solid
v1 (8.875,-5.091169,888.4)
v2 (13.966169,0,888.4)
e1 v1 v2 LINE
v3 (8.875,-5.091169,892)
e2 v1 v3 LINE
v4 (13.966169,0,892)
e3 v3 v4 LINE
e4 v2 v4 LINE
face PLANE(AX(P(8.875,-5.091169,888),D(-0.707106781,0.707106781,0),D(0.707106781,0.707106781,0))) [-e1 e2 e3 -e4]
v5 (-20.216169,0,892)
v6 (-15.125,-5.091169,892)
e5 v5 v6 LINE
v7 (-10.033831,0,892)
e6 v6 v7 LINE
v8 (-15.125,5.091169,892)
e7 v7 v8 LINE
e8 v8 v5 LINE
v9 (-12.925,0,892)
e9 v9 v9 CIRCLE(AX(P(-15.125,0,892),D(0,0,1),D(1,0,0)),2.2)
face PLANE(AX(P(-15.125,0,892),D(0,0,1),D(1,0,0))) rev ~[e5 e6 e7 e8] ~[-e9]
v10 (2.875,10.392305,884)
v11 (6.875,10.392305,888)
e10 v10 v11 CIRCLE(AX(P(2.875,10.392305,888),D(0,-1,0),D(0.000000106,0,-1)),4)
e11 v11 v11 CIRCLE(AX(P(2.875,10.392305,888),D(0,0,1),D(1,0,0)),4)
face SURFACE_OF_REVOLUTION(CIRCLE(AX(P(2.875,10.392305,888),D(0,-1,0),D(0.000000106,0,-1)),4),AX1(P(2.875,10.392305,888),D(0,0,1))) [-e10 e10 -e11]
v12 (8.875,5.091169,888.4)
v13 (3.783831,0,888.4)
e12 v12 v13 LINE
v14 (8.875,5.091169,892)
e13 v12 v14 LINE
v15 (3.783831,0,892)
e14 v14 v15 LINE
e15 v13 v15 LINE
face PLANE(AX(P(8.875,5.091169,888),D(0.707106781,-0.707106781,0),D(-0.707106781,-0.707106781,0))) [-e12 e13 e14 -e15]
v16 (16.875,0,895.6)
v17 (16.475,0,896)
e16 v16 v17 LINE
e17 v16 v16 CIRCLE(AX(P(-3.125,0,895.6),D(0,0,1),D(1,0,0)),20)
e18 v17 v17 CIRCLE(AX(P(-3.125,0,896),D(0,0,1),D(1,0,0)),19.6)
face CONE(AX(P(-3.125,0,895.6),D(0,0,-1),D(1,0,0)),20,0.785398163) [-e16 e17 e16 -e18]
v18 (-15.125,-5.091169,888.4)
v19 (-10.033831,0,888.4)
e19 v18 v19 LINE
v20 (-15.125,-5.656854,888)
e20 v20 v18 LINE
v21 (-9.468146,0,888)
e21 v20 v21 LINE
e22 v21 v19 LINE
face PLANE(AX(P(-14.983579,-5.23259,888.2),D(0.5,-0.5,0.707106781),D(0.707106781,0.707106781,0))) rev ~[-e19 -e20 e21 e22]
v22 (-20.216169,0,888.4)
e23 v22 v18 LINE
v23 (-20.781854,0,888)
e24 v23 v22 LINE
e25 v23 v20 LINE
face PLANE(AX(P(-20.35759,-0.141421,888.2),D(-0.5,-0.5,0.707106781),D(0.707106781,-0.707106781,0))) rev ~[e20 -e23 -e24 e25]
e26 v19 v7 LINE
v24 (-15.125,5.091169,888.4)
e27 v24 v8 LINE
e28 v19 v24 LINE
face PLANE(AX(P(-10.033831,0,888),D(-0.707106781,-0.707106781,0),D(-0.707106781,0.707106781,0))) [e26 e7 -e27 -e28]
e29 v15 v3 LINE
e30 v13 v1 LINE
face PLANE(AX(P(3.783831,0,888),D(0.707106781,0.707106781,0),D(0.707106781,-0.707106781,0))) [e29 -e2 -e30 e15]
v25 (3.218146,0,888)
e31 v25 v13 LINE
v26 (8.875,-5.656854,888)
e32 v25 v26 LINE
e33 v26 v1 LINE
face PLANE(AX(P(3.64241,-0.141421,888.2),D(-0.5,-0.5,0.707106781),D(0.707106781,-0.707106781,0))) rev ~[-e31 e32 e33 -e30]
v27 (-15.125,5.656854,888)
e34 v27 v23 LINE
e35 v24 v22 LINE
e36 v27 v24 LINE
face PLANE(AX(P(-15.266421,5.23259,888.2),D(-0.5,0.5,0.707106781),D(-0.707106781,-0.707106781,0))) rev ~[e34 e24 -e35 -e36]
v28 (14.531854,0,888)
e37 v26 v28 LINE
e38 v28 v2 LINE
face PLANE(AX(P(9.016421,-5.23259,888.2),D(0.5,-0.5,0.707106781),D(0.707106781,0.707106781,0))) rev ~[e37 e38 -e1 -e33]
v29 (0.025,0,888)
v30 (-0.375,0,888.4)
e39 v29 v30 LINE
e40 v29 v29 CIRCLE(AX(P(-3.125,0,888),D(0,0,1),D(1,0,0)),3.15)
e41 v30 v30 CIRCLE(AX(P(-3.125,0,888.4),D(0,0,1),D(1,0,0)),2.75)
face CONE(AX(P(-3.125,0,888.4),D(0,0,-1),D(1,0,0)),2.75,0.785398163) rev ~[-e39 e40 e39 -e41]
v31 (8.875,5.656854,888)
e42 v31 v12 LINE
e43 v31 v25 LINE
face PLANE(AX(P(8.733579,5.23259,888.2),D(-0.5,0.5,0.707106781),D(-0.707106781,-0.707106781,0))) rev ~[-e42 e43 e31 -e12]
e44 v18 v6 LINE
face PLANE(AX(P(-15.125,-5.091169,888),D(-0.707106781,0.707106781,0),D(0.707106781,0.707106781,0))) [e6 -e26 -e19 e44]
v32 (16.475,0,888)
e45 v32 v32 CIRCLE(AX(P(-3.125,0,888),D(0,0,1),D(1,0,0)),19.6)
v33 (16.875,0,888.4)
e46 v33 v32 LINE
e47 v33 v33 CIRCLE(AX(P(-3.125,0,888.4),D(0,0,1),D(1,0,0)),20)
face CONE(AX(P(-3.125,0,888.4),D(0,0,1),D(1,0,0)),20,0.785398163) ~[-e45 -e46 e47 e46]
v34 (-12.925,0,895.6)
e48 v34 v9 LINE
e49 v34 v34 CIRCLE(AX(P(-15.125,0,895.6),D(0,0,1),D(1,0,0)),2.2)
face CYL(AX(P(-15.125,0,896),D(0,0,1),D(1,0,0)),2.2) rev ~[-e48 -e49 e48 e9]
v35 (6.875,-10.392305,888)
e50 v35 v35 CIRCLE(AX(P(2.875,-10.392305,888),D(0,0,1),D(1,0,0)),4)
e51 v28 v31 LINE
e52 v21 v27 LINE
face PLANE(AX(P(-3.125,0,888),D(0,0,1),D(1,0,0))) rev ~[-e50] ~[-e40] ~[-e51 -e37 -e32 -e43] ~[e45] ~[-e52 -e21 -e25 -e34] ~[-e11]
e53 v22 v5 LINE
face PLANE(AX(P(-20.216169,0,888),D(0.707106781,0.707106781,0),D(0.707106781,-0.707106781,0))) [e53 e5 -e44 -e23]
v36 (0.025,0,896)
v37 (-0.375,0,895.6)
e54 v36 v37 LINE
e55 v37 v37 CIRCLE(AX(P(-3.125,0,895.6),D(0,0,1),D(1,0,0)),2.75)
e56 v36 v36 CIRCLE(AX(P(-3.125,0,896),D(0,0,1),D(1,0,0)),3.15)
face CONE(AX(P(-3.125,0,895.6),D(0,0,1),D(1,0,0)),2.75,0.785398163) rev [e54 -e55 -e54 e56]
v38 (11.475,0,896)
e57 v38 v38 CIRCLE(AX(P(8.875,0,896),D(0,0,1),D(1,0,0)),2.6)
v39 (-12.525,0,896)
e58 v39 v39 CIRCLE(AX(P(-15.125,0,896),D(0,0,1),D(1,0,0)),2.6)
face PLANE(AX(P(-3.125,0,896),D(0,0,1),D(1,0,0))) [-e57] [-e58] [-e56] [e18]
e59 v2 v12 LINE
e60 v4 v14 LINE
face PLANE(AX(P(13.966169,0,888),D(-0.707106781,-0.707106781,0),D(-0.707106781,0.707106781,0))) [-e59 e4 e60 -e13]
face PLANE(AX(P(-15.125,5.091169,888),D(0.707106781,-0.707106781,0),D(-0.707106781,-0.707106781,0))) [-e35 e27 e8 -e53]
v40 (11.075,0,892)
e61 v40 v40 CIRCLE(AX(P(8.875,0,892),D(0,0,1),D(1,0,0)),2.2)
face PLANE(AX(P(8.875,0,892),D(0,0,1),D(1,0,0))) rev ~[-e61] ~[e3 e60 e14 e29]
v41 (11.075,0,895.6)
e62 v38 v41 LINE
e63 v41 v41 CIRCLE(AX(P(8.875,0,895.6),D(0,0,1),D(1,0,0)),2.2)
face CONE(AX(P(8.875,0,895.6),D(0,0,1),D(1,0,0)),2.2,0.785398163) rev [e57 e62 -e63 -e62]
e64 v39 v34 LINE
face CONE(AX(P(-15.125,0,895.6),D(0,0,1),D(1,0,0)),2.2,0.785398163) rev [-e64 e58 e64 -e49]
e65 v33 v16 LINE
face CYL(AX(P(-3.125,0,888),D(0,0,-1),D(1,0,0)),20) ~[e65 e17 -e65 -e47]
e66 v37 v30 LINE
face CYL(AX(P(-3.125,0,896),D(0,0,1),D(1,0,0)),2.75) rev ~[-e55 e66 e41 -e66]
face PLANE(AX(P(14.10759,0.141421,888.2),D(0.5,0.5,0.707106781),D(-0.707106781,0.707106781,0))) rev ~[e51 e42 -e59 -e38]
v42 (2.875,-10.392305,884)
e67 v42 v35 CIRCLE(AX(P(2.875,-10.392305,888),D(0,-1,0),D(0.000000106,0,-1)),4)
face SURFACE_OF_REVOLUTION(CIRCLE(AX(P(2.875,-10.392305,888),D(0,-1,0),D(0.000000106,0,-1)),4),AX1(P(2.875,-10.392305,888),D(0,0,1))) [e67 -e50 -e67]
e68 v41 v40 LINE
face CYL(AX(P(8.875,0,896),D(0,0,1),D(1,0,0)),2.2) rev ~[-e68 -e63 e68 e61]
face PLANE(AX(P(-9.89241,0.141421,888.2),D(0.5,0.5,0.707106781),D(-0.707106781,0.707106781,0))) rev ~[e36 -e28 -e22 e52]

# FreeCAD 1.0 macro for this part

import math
import FreeCAD as App
import Part
import Sketcher


def edges_at(feature, points):
    """Names of the edges that pass closest to the given points."""
    edges = feature.Shape.Edges
    near = lambda p: min(range(len(edges)), key=lambda i: edges[i].distToShape(Part.Vertex(*p))[0])
    return sorted({f"Edge{near(p) + 1}" for p in points})


def add_polygon(sketch, points):
    """Adds a closed chain of lines whose ends are joined by coincident constraints."""
    first, n = sketch.GeometryCount, len(points)
    for a, b in zip(points, points[1:] + points[:1]):
        sketch.addGeometry(Part.LineSegment(App.Vector(*a, 0), App.Vector(*b, 0)), False)
    for i in range(n):
        sketch.addConstraint(Sketcher.Constraint("Coincident", first + i, 2, first + (i + 1) % n, 1))

doc = App.newDocument("Part")
body = doc.addObject("PartDesign::Body", "Body")

# Sketch on XY plane
sketch1 = body.newObject("Sketcher::SketchObject", "Sketch")
sketch1.AttachmentSupport = (doc.getObject("XY_Plane"), [""])
sketch1.MapMode = "FlatFace"
sketch1.addGeometry(Part.Circle(App.Vector(0, 0, 0), App.Vector(0, 0, 1), 20), False)
sketch1.addConstraint([
    Sketcher.Constraint("Coincident", 0, 3, -1, 1),
    Sketcher.Constraint("Diameter", 0, 40.0),
])
pad1 = body.newObject("PartDesign::Pad", "Pad")
pad1.Profile = sketch1
pad1.Length = 8

# Sketch on XZ plane
sketch2 = body.newObject("Sketcher::SketchObject", "Sketch001")
sketch2.AttachmentSupport = (doc.getObject("XZ_Plane"), [""])
sketch2.MapMode = "FlatFace"
sketch2.AttachmentOffset = App.Placement(App.Vector(0, 0, -10.392305), App.Rotation())
sketch2.addGeometry([
    Part.ArcOfCircle(Part.Circle(App.Vector(6, 0, 0), App.Vector(0, 0, 1), 4), math.radians(-90), math.radians(0)),
    Part.LineSegment(App.Vector(10, 0, 0), App.Vector(6, 0, 0)),
    Part.LineSegment(App.Vector(6, 0, 0), App.Vector(6, -4, 0)),
], False)
sketch2.addGeometry(Part.LineSegment(App.Vector(6, -4, 0), App.Vector(6, 0, 0)), True)  # axis
sketch2.addConstraint([
    Sketcher.Constraint("Coincident", 0, 2, 1, 1),
    Sketcher.Constraint("Coincident", 1, 2, 2, 1),
    Sketcher.Constraint("Coincident", 2, 2, 0, 1),
    Sketcher.Constraint("Horizontal", 1),
    Sketcher.Constraint("Vertical", 2),
    Sketcher.Constraint("Vertical", 3),
    Sketcher.Constraint("Coincident", 1, 2, 0, 3),
    Sketcher.Constraint("Coincident", 3, 1, 2, 2),
    Sketcher.Constraint("PointOnObject", 0, 3, -1),
    Sketcher.Constraint("PointOnObject", 3, 2, -1),
    Sketcher.Constraint("Radius", 0, 4.0),
    Sketcher.Constraint("DistanceX", -1, 1, 0, 3, 6.0),
])
revolution = body.newObject("PartDesign::Revolution", "Revolution")
revolution.Profile = sketch2
revolution.ReferenceAxis = (sketch2, ["Axis0"])
revolution.Angle = 360

# Sketch on XZ plane
sketch3 = body.newObject("Sketcher::SketchObject", "Sketch002")
sketch3.AttachmentSupport = (doc.getObject("XZ_Plane"), [""])
sketch3.MapMode = "FlatFace"
sketch3.AttachmentOffset = App.Placement(App.Vector(0, 0, 10.392305), App.Rotation())
sketch3.addGeometry([
    Part.ArcOfCircle(Part.Circle(App.Vector(6, 0, 0), App.Vector(0, 0, 1), 4), math.radians(-90), math.radians(0)),
    Part.LineSegment(App.Vector(10, 0, 0), App.Vector(6, 0, 0)),
    Part.LineSegment(App.Vector(6, 0, 0), App.Vector(6, -4, 0)),
], False)
sketch3.addGeometry(Part.LineSegment(App.Vector(6, -4, 0), App.Vector(6, 0, 0)), True)  # axis
sketch3.addConstraint([
    Sketcher.Constraint("Coincident", 0, 2, 1, 1),
    Sketcher.Constraint("Coincident", 1, 2, 2, 1),
    Sketcher.Constraint("Coincident", 2, 2, 0, 1),
    Sketcher.Constraint("Horizontal", 1),
    Sketcher.Constraint("Vertical", 2),
    Sketcher.Constraint("Vertical", 3),
    Sketcher.Constraint("Coincident", 1, 2, 0, 3),
    Sketcher.Constraint("Coincident", 3, 1, 2, 2),
    Sketcher.Constraint("PointOnObject", 0, 3, -1),
    Sketcher.Constraint("PointOnObject", 3, 2, -1),
    Sketcher.Constraint("Radius", 0, 4.0),
    Sketcher.Constraint("DistanceX", -1, 1, 0, 3, 6.0),
])
revolution2 = body.newObject("PartDesign::Revolution", "Revolution001")
revolution2.Profile = sketch3
revolution2.ReferenceAxis = (sketch3, ["Axis0"])
revolution2.Angle = 360

# Sketch on XY plane
sketch4 = body.newObject("Sketcher::SketchObject", "Sketch003")
sketch4.AttachmentSupport = (doc.getObject("XY_Plane"), [""])
sketch4.MapMode = "FlatFace"
sketch4.AttachmentOffset = App.Placement(App.Vector(0, 0, 8), App.Rotation())
sketch4.addGeometry([
    Part.Circle(App.Vector(-12, 0, 0), App.Vector(0, 0, 1), 2.2),
    Part.Circle(App.Vector(12, 0, 0), App.Vector(0, 0, 1), 2.2),
    Part.Circle(App.Vector(0, 0, 0), App.Vector(0, 0, 1), 2.8),
], False)
sketch4.addConstraint([
    Sketcher.Constraint("Coincident", 2, 3, -1, 1),
    Sketcher.Constraint("Equal", 0, 1),
    Sketcher.Constraint("Symmetric", 0, 3, 1, 3, -1, 1),
    Sketcher.Constraint("PointOnObject", 0, 3, -1),
    Sketcher.Constraint("Diameter", 0, 4.4),
    Sketcher.Constraint("Diameter", 2, 5.5),
    Sketcher.Constraint("DistanceX", 0, 3, -1, 1, 12.0),
])
pocket1 = body.newObject("PartDesign::Pocket", "Pocket")
pocket1.Profile = sketch4
pocket1.Type = "ThroughAll"

# Sketch on XY plane
sketch5 = body.newObject("Sketcher::SketchObject", "Sketch004")
sketch5.AttachmentSupport = (doc.getObject("XY_Plane"), [""])
sketch5.MapMode = "FlatFace"
add_polygon(sketch5, [(-17, 0), (-12, -5), (-7, 0), (-12, 5)])  # lines 0-3
add_polygon(sketch5, [(17, 0), (12, 5), (7, 0), (12, -5)])  # lines 4-7
sketch5.addConstraint([
    Sketcher.Constraint("Symmetric", 0, 2, 4, 2, -1, 1),
    Sketcher.Constraint("Symmetric", 1, 2, 5, 2, -1, 1),
    Sketcher.Constraint("Symmetric", 2, 2, 6, 2, -1, 1),
    Sketcher.Constraint("Symmetric", 3, 2, 7, 2, -1, 1),
    Sketcher.Constraint("Symmetric", 2, 2, 4, 2, -2),
    Sketcher.Constraint("PointOnObject", 1, 2, -1),
    Sketcher.Constraint("PointOnObject", 3, 2, -1),
    Sketcher.Constraint("Perpendicular", 0, 1),
    Sketcher.Constraint("Perpendicular", 1, 2),
    Sketcher.Constraint("DistanceX", 0, 2, -1, 1, 12.0),
    Sketcher.Constraint("Distance", 0, 7.2),
])
pocket2 = body.newObject("PartDesign::Pocket", "Pocket001")
pocket2.Profile = sketch5
pocket2.Length = 4
pocket2.Reversed = True
doc.recompute()

chamfer = body.newObject("PartDesign::Chamfer", "Chamfer")
chamfer.Base = (pocket2, edges_at(pocket2, [
    (-20, 0, 8),
    (-14.2, 0, 8),
    (-2.75, 0, 8),
    (9.8, 0, 8),
    (-20, 0, 0),
    (-2.75, 0, 0),
    (9.454, 2.546, 0),
    (9.454, -2.546, 0),
    (14.546, -2.546, 0),
    (14.546, 2.546, 0),
    (-9.454, 2.546, 0),
    (-14.546, 2.546, 0),
    (-14.546, -2.546, 0),
    (-9.454, -2.546, 0),
]))
chamfer.Size = 0.4
body2 = doc.addObject("PartDesign::Body", "Body001")
doc.recompute()

body.Placement = App.Placement(App.Vector(-3.125, 0, 888), App.Rotation(App.Vector(0, 0, 1), 0))
boolean = body2.newObject("PartDesign::Boolean", "Boolean")
boolean.Type = "Fuse"
boolean.addObjects([body])

doc.recompute()
